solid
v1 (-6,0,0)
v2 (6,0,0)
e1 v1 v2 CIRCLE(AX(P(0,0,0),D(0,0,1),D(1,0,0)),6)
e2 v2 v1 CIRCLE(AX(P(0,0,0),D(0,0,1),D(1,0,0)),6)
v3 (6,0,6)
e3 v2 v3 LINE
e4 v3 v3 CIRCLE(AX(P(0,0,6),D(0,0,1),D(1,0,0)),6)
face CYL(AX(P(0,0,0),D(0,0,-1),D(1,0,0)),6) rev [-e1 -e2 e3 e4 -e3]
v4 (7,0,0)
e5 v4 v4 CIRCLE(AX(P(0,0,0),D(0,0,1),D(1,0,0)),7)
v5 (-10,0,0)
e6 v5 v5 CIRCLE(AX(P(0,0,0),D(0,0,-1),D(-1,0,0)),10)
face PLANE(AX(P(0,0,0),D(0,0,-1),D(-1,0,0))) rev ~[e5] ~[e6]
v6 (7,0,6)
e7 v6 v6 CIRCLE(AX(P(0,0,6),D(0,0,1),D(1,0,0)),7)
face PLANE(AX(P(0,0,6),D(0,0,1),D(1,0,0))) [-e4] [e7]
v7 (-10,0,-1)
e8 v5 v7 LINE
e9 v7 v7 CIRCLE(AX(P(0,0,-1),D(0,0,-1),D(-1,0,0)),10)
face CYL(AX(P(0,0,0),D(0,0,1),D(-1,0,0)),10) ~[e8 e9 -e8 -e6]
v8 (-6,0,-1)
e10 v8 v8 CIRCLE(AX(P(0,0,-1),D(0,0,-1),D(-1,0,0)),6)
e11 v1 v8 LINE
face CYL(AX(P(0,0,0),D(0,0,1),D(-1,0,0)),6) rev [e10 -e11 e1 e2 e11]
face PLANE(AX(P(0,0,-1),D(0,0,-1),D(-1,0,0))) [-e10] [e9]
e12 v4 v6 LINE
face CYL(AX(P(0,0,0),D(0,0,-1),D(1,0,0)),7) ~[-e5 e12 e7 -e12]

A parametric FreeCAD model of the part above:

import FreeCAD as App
import Part
import Sketcher

doc = App.newDocument("Part")
body = doc.addObject("PartDesign::Body", "Body")

sketch1 = doc.addObject("Sketcher::SketchObject", "Sketch")
body.addObject(sketch1)
sketch1.AttachmentSupport = (doc.XY_Plane, [""])
sketch1.MapMode = "FlatFace"
sketch1.addGeometry(Part.Circle(App.Vector(0, 0, 0), App.Vector(0, 0, 1), 7), False)
sketch1.addGeometry(Part.Circle(App.Vector(0, 0, 0), App.Vector(0, 0, 1), 6), False)
sketch1.addConstraint(Sketcher.Constraint("Coincident", 0, 3, -1, 1))
sketch1.addConstraint(Sketcher.Constraint("Coincident", 1, 3, -1, 1))
sketch1.addConstraint(Sketcher.Constraint("Diameter", 0, 14.0))
sketch1.addConstraint(Sketcher.Constraint("Diameter", 1, 12.0))
pad1 = doc.addObject("PartDesign::Pad", "Pad")
body.addObject(pad1)
pad1.Profile = sketch1
pad1.Length = 6

sketch2 = doc.addObject("Sketcher::SketchObject", "Sketch001")
body.addObject(sketch2)
sketch2.AttachmentSupport = (doc.XY_Plane, [""])
sketch2.MapMode = "FlatFace"
sketch2.addGeometry(Part.Circle(App.Vector(0, 0, 0), App.Vector(0, 0, 1), 10), False)
sketch2.addGeometry(Part.Circle(App.Vector(0, 0, 0), App.Vector(0, 0, 1), 6), False)
sketch2.addConstraint(Sketcher.Constraint("Coincident", 0, 3, -1, 1))
sketch2.addConstraint(Sketcher.Constraint("Coincident", 1, 3, -1, 1))
sketch2.addConstraint(Sketcher.Constraint("Diameter", 0, 20.0))
sketch2.addConstraint(Sketcher.Constraint("Diameter", 1, 12.0))
pad2 = doc.addObject("PartDesign::Pad", "Pad001")
body.addObject(pad2)
pad2.Profile = sketch2
pad2.Length = 1
pad2.Reversed = True

doc.recompute()
